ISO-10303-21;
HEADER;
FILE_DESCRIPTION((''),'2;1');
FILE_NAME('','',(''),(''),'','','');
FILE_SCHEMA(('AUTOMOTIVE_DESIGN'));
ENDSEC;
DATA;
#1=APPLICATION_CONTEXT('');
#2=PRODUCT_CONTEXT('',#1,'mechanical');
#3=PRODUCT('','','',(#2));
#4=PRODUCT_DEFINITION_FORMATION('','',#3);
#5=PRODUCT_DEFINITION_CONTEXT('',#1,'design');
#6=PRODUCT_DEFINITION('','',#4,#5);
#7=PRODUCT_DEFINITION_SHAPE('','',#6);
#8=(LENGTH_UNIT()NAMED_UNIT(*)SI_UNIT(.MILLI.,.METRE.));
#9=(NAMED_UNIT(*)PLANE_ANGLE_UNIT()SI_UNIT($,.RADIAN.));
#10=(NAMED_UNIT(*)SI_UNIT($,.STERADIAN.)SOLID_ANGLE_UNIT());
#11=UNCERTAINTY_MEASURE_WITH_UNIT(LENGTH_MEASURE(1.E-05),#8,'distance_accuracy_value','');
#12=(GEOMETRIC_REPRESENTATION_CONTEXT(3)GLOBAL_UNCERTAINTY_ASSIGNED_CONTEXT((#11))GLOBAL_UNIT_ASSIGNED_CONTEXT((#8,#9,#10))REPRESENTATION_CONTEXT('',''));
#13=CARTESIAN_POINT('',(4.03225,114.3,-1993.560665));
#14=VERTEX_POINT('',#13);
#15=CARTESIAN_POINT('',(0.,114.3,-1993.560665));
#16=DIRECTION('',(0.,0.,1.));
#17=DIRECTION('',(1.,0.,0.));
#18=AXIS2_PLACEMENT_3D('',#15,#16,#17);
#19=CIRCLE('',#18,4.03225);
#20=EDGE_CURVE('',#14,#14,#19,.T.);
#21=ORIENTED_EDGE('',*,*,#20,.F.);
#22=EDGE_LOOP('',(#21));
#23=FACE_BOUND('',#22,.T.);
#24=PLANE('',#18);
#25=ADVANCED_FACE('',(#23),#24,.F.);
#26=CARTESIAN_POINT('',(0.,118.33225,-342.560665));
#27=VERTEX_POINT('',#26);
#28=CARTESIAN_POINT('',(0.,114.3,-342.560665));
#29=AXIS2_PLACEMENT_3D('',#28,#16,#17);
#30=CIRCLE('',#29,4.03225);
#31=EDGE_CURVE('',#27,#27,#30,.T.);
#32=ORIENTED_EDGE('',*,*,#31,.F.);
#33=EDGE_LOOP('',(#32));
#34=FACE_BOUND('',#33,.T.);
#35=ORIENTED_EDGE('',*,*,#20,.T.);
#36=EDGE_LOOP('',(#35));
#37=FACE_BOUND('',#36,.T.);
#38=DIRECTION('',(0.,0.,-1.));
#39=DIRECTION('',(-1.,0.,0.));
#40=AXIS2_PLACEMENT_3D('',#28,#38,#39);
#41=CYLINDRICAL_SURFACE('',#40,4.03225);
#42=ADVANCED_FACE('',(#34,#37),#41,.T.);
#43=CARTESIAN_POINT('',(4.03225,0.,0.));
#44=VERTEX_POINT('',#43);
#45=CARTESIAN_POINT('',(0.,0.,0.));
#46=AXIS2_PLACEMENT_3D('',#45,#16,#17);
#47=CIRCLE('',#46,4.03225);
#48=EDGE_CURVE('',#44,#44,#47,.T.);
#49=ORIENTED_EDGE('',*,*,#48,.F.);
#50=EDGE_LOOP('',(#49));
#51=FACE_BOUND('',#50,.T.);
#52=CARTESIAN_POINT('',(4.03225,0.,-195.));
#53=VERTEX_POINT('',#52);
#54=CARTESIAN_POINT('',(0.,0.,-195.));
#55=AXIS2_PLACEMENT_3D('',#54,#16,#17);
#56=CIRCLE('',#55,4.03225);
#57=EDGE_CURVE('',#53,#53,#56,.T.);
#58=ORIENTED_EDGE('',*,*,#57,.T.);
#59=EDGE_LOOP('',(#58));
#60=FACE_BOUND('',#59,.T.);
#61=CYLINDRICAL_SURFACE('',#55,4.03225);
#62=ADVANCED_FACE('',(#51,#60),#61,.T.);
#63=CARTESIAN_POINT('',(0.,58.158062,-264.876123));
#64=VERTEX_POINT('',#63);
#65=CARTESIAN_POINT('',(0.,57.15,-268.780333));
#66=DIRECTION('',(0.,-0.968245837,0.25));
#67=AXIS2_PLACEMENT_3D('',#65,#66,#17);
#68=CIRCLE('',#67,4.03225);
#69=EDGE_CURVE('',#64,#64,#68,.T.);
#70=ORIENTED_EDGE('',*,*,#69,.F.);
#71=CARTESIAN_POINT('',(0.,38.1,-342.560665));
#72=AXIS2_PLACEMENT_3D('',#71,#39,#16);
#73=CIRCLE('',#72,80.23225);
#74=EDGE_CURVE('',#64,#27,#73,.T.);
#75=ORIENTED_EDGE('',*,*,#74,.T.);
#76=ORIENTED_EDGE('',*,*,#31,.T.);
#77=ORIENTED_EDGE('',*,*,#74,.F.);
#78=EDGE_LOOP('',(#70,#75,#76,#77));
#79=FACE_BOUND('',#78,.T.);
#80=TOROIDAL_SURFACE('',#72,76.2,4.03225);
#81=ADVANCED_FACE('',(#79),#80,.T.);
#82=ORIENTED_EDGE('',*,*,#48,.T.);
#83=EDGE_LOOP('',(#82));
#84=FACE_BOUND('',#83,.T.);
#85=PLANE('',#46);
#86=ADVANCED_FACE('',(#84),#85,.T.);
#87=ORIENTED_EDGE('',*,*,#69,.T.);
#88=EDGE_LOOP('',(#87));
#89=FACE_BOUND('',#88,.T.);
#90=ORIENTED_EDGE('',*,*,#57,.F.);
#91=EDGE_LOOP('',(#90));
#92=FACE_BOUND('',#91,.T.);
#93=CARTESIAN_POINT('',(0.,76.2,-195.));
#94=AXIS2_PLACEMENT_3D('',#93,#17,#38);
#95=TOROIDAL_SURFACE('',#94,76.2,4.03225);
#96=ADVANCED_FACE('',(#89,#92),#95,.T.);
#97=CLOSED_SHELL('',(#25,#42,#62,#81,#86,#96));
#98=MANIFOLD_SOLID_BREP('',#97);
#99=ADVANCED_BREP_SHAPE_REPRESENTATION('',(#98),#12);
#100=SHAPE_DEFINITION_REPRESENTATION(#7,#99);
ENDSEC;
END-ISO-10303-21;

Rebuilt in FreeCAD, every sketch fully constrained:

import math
import FreeCAD as App
import Part
import Sketcher

V = App.Vector
Q = App.Units.Quantity

doc = App.newDocument("Part")
body = doc.addObject("PartDesign::Body", "Body")

sketch1 = body.newObject("Sketcher::SketchObject", "Sketch")
sketch1.AttachmentSupport = (doc.getObject("XY_Plane"), [""])
sketch1.MapMode = "FlatFace"
sketch1.addGeometry(Part.Circle(V(0, 0, 0), V(0, 0, 1), 4.03225), False)
sketch1.addConstraint(Sketcher.Constraint("Coincident", 0, 3, -1, 1))
sketch1.addConstraint(Sketcher.Constraint("Diameter", 0, Q("0.3175 in")))

sketch2 = body.newObject("Sketcher::SketchObject", "Sketch001")
sketch2.AttachmentSupport = (doc.getObject("YZ_Plane"), [""])
sketch2.MapMode = "FlatFace"
sketch2.addGeometry(Part.LineSegment(V(0, 0, 0), V(0, -195, 0)), False)
sketch2.addGeometry(Part.ArcOfCircle(Part.Circle(V(76.2, -195, 0), V(0, 0, 1), 76.2), math.radians(180), math.radians(255.522488)), False)
sketch2.addGeometry(Part.ArcOfCircle(Part.Circle(V(38.1, -342.560665, 0), V(0, 0, 1), 76.2), math.radians(0), math.radians(75.522488)), False)
sketch2.addGeometry(Part.LineSegment(V(114.3, -342.560665, 0), V(114.3, -1993.560665, 0)), False)
sketch2.addConstraint(Sketcher.Constraint("Tangent", 0, 2, 1, 1))
sketch2.addConstraint(Sketcher.Constraint("Tangent", 1, 2, 2, 2))
sketch2.addConstraint(Sketcher.Constraint("Tangent", 2, 1, 3, 1))
sketch2.addConstraint(Sketcher.Constraint("Vertical", 0))
sketch2.addConstraint(Sketcher.Constraint("Vertical", 3))
sketch2.addConstraint(Sketcher.Constraint("Coincident", 0, 1, -1, 1))
sketch2.addConstraint(Sketcher.Constraint("Equal", 1, 2))
sketch2.addConstraint(Sketcher.Constraint("Radius", 1, Q("3 in")))
sketch2.addConstraint(Sketcher.Constraint("DistanceY", 3, 2, 3, 1, Q("65 in")))
sketch2.addConstraint(Sketcher.Constraint("DistanceX", -1, 1, 2, 3, Q("1.5 in")))
sketch2.addConstraint(Sketcher.Constraint("DistanceY", 0, 2, 0, 1, Q("195 mm")))
doc.recompute()

additivepipe = body.newObject("PartDesign::AdditivePipe", "AdditivePipe")
additivepipe.Profile = sketch1
additivepipe.Spine = (sketch2, ["Edge1", "Edge2", "Edge3", "Edge4"])

doc.recompute()
